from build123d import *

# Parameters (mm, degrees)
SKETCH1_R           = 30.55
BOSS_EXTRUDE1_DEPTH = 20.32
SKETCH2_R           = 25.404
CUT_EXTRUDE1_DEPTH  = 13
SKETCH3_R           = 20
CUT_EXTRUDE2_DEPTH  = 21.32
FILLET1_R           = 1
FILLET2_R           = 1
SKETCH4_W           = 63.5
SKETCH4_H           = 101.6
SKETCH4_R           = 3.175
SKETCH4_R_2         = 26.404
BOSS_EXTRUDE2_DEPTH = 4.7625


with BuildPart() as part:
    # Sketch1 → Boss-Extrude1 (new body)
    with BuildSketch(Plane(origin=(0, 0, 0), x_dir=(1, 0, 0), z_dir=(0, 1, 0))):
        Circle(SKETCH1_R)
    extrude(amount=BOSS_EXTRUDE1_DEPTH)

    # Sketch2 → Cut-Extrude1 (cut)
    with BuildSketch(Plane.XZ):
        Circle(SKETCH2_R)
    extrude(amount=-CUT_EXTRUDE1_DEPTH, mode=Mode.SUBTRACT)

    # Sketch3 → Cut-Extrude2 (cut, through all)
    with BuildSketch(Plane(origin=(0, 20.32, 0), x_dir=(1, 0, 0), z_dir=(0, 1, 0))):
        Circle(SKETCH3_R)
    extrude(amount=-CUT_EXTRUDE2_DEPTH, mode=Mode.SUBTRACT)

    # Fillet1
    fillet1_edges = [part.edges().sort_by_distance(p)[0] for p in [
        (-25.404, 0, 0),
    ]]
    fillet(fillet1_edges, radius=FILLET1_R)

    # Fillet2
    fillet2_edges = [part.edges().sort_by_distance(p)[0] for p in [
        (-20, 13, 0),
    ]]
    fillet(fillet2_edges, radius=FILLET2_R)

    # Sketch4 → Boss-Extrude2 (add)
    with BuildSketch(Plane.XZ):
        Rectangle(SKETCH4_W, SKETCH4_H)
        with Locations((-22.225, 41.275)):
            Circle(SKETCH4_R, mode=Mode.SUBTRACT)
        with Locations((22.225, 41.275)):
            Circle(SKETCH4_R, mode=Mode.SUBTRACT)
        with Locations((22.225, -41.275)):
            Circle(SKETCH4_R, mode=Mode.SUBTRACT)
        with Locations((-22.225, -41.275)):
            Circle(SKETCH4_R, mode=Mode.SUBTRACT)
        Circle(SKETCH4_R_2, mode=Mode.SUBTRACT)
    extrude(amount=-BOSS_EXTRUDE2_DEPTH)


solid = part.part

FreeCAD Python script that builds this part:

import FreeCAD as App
import Part
import Sketcher
Q = App.Units.Quantity


def edges_at(feature, points):
    """Names of the edges that pass closest to the given points."""
    edges = feature.Shape.Edges
    near = lambda p: min(range(len(edges)), key=lambda i: edges[i].distToShape(Part.Vertex(*p))[0])
    return sorted({f"Edge{near(p) + 1}" for p in points})


def add_polygon(sketch, points):
    """Adds a closed chain of lines whose ends are joined by coincident constraints."""
    first, n = sketch.GeometryCount, len(points)
    for a, b in zip(points, points[1:] + points[:1]):
        sketch.addGeometry(Part.LineSegment(App.Vector(*a, 0), App.Vector(*b, 0)), False)
    for i in range(n):
        sketch.addConstraint(Sketcher.Constraint("Coincident", first + i, 2, first + (i + 1) % n, 1))

doc = App.newDocument("Part")
body = doc.addObject("PartDesign::Body", "Body")

# Sketch on XZ plane
sketch1 = body.newObject("Sketcher::SketchObject", "Sketch")
sketch1.AttachmentSupport = (doc.getObject("XZ_Plane"), [""])
sketch1.MapMode = "FlatFace"
sketch1.addGeometry(Part.Circle(App.Vector(0, 0, 0), App.Vector(0, 0, 1), 30.55), False)
sketch1.addConstraint(Sketcher.Constraint("Coincident", 0, 3, -1, 1))
sketch1.addConstraint(Sketcher.Constraint("Diameter", 0, 61.1))
pad1 = body.newObject("PartDesign::Pad", "Pad")
pad1.Profile = sketch1
pad1.Length = Q("0.8 in")
pad1.Reversed = True

# Sketch on XZ plane
sketch2 = body.newObject("Sketcher::SketchObject", "Sketch001")
sketch2.AttachmentSupport = (doc.getObject("XZ_Plane"), [""])
sketch2.MapMode = "FlatFace"
sketch2.addGeometry(Part.Circle(App.Vector(0, 0, 0), App.Vector(0, 0, 1), 25.404), False)
sketch2.addConstraint(Sketcher.Constraint("Coincident", 0, 3, -1, 1))
sketch2.addConstraint(Sketcher.Constraint("Diameter", 0, 50.808))
pocket1 = body.newObject("PartDesign::Pocket", "Pocket")
pocket1.Profile = sketch2
pocket1.Length = 13

# Sketch on XZ plane
sketch3 = body.newObject("Sketcher::SketchObject", "Sketch002")
sketch3.AttachmentSupport = (doc.getObject("XZ_Plane"), [""])
sketch3.MapMode = "FlatFace"
sketch3.AttachmentOffset = App.Placement(App.Vector(0, 0, -0.8 * 25.4), App.Rotation())
sketch3.addGeometry(Part.Circle(App.Vector(0, 0, 0), App.Vector(0, 0, 1), 20), False)
sketch3.addConstraint(Sketcher.Constraint("Coincident", 0, 3, -1, 1))
sketch3.addConstraint(Sketcher.Constraint("Diameter", 0, 40.0))
pocket2 = body.newObject("PartDesign::Pocket", "Pocket001")
pocket2.Profile = sketch3
pocket2.Type = "ThroughAll"
pocket2.Reversed = True
doc.recompute()

fillet = body.newObject("PartDesign::Fillet", "Fillet")
fillet.Base = (pocket2, edges_at(pocket2, [(-25.404, 0, 0)]))
fillet.Radius = 1
doc.recompute()

fillet2 = body.newObject("PartDesign::Fillet", "Fillet001")
fillet2.Base = (fillet, edges_at(fillet, [(-20, 13, 0)]))
fillet2.Radius = 1

# Sketch on XZ plane
sketch4 = body.newObject("Sketcher::SketchObject", "Sketch003")
sketch4.AttachmentSupport = (doc.getObject("XZ_Plane"), [""])
sketch4.MapMode = "FlatFace"
add_polygon(sketch4, [(-31.75, 50.8), (-31.75, -50.8), (31.75, -50.8), (31.75, 50.8)])  # lines 0-3
sketch4.addGeometry(Part.Circle(App.Vector(-22.225, -41.275, 0), App.Vector(0, 0, 1), 3.175), False)  # 4
sketch4.addGeometry(Part.Circle(App.Vector(22.225, -41.275, 0), App.Vector(0, 0, 1), 3.175), False)  # 5
sketch4.addGeometry(Part.Circle(App.Vector(-22.225, 41.275, 0), App.Vector(0, 0, 1), 3.175), False)  # 6
sketch4.addGeometry(Part.Circle(App.Vector(0, 0, 0), App.Vector(0, 0, 1), 26.404), False)  # 7
sketch4.addGeometry(Part.Circle(App.Vector(22.225, 41.275, 0), App.Vector(0, 0, 1), 3.175), False)  # 8
sketch4.addConstraint(Sketcher.Constraint("Vertical", 0))
sketch4.addConstraint(Sketcher.Constraint("Horizontal", 1))
sketch4.addConstraint(Sketcher.Constraint("Vertical", 2))
sketch4.addConstraint(Sketcher.Constraint("Horizontal", 3))
sketch4.addConstraint(Sketcher.Constraint("Coincident", 7, 3, -1, 1))
sketch4.addConstraint(Sketcher.Constraint("Equal", 4, 5))
sketch4.addConstraint(Sketcher.Constraint("Equal", 5, 6))
sketch4.addConstraint(Sketcher.Constraint("Equal", 6, 8))
sketch4.addConstraint(Sketcher.Constraint("Symmetric", 5, 3, 6, 3, -1, 1))
sketch4.addConstraint(Sketcher.Constraint("Symmetric", 4, 3, 8, 3, -1, 1))
sketch4.addConstraint(Sketcher.Constraint("Symmetric", 0, 2, 2, 2, -1, 1))
sketch4.addConstraint(Sketcher.Constraint("Symmetric", 4, 3, 5, 3, -2))
sketch4.addConstraint(Sketcher.Constraint("Diameter", 4, Q("0.25 in")))
sketch4.addConstraint(Sketcher.Constraint("DistanceY", 0, 2, 0, 1, Q("4 in")))
sketch4.addConstraint(Sketcher.Constraint("DistanceX", 1, 1, 1, 2, Q("2.5 in")))
sketch4.addConstraint(Sketcher.Constraint("Diameter", 7, 52.808))
sketch4.addConstraint(Sketcher.Constraint("DistanceX", 4, 3, 5, 3, Q("1.75 in")))
sketch4.addConstraint(Sketcher.Constraint("DistanceY", 4, 3, 6, 3, Q("3.25 in")))
pad2 = body.newObject("PartDesign::Pad", "Pad001")
pad2.Profile = sketch4
pad2.Length = Q("0.1875 in")
pad2.Reversed = True

doc.recompute()
